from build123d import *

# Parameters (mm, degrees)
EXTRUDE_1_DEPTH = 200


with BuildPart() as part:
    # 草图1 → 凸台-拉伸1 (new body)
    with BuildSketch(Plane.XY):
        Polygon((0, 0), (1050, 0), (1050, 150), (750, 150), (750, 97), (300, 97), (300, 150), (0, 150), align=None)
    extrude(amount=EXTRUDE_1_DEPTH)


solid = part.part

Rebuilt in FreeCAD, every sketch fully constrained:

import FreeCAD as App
import Part
import Sketcher

V = App.Vector
Q = App.Units.Quantity


def add_polygon(sketch, points):
    """Adds a closed chain of lines whose ends are joined by coincident constraints."""
    first, n = sketch.GeometryCount, len(points)
    for a, b in zip(points, points[1:] + points[:1]):
        sketch.addGeometry(Part.LineSegment(App.Vector(*a, 0), App.Vector(*b, 0)), False)
    for i in range(n):
        sketch.addConstraint(Sketcher.Constraint("Coincident", first + i, 2, first + (i + 1) % n, 1))

doc = App.newDocument("Part")
body = doc.addObject("PartDesign::Body", "Body")

# Sketch on XY plane
sketch1 = doc.addObject("Sketcher::SketchObject", "Sketch")
body.addObject(sketch1)
sketch1.AttachmentSupport = (doc.XY_Plane, [""])
sketch1.MapMode = "FlatFace"
add_polygon(sketch1, [(0, 0), (1050, 0), (1050, 150), (750, 150), (750, 97), (300, 97), (300, 150), (0, 150)])  # lines 0-7
sketch1.addConstraint([
    Sketcher.Constraint("Horizontal", 0),
    Sketcher.Constraint("Vertical", 1),
    Sketcher.Constraint("Horizontal", 2),
    Sketcher.Constraint("Vertical", 3),
    Sketcher.Constraint("Horizontal", 4),
    Sketcher.Constraint("Vertical", 5),
    Sketcher.Constraint("Horizontal", 6),
    Sketcher.Constraint("Vertical", 7),
    Sketcher.Constraint("Coincident", 7, 2, -1, 1),
    Sketcher.Constraint("Horizontal", 2, 2, 5, 2),
    Sketcher.Constraint("Equal", 2, 6),
    Sketcher.Constraint("DistanceX", 0, 1, 0, 2, Q("1050 mm")),
    Sketcher.Constraint("DistanceX", 2, 2, 2, 1, Q("300 mm")),
    Sketcher.Constraint("DistanceY", 1, 1, 1, 2, Q("150 mm")),
    Sketcher.Constraint("DistanceY", 3, 2, 3, 1, Q("53 mm")),
])
pad1 = doc.addObject("PartDesign::Pad", "Pad")
body.addObject(pad1)
pad1.Profile = sketch1
pad1.Length = 200

doc.recompute()
